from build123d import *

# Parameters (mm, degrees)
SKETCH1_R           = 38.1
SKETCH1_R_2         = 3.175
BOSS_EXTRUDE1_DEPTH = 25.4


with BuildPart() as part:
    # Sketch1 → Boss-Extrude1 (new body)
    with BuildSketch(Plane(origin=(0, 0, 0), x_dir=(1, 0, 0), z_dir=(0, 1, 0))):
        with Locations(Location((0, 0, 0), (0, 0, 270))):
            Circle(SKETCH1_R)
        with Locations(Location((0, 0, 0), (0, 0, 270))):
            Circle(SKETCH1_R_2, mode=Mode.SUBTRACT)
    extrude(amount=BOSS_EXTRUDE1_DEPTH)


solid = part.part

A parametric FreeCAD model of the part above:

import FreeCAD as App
import Part
import Sketcher

V = App.Vector
Q = App.Units.Quantity

doc = App.newDocument("Part")
params = doc.addObject("Spreadsheet::Sheet", "Params")
for row, (alias, value) in enumerate([
    ("sketch1_diameter", "3 in"),
    ("sketch1_diameter2", "0.25 in"),
    ("pad1_length", "1 in"),
], start=1):
    params.set(f"A{row}", alias)
    params.set(f"B{row}", "=" + value)
    params.setAlias(f"B{row}", alias)

body = doc.addObject("PartDesign::Body", "Body")

# Sketch on XZ plane
sketch1 = doc.addObject("Sketcher::SketchObject", "Sketch")
body.addObject(sketch1)
sketch1.AttachmentSupport = (doc.XZ_Plane, [""])
sketch1.MapMode = "FlatFace"
sketch1.addGeometry(Part.Circle(V(0, 0, 0), V(0, 0, 1), 38.1), False)
sketch1.addGeometry(Part.Circle(V(0, 0, 0), V(0, 0, 1), 3.2), False)
sketch1.addConstraint(Sketcher.Constraint("Coincident", 0, 3, -1, 1))
sketch1.addConstraint(Sketcher.Constraint("Coincident", 1, 3, -1, 1))
sketch1.addConstraint(Sketcher.Constraint("Diameter", 0, Q("3 in")))
sketch1.addConstraint(Sketcher.Constraint("Diameter", 1, Q("0.25 in")))
sketch1.setExpression("Constraints[2]", "Params.sketch1_diameter")
sketch1.setExpression("Constraints[3]", "Params.sketch1_diameter2")
pad1 = doc.addObject("PartDesign::Pad", "Pad")
body.addObject(pad1)
pad1.Profile = sketch1
pad1.setExpression("Length", "Params.pad1_length")
pad1.Reversed = True

doc.recompute()
